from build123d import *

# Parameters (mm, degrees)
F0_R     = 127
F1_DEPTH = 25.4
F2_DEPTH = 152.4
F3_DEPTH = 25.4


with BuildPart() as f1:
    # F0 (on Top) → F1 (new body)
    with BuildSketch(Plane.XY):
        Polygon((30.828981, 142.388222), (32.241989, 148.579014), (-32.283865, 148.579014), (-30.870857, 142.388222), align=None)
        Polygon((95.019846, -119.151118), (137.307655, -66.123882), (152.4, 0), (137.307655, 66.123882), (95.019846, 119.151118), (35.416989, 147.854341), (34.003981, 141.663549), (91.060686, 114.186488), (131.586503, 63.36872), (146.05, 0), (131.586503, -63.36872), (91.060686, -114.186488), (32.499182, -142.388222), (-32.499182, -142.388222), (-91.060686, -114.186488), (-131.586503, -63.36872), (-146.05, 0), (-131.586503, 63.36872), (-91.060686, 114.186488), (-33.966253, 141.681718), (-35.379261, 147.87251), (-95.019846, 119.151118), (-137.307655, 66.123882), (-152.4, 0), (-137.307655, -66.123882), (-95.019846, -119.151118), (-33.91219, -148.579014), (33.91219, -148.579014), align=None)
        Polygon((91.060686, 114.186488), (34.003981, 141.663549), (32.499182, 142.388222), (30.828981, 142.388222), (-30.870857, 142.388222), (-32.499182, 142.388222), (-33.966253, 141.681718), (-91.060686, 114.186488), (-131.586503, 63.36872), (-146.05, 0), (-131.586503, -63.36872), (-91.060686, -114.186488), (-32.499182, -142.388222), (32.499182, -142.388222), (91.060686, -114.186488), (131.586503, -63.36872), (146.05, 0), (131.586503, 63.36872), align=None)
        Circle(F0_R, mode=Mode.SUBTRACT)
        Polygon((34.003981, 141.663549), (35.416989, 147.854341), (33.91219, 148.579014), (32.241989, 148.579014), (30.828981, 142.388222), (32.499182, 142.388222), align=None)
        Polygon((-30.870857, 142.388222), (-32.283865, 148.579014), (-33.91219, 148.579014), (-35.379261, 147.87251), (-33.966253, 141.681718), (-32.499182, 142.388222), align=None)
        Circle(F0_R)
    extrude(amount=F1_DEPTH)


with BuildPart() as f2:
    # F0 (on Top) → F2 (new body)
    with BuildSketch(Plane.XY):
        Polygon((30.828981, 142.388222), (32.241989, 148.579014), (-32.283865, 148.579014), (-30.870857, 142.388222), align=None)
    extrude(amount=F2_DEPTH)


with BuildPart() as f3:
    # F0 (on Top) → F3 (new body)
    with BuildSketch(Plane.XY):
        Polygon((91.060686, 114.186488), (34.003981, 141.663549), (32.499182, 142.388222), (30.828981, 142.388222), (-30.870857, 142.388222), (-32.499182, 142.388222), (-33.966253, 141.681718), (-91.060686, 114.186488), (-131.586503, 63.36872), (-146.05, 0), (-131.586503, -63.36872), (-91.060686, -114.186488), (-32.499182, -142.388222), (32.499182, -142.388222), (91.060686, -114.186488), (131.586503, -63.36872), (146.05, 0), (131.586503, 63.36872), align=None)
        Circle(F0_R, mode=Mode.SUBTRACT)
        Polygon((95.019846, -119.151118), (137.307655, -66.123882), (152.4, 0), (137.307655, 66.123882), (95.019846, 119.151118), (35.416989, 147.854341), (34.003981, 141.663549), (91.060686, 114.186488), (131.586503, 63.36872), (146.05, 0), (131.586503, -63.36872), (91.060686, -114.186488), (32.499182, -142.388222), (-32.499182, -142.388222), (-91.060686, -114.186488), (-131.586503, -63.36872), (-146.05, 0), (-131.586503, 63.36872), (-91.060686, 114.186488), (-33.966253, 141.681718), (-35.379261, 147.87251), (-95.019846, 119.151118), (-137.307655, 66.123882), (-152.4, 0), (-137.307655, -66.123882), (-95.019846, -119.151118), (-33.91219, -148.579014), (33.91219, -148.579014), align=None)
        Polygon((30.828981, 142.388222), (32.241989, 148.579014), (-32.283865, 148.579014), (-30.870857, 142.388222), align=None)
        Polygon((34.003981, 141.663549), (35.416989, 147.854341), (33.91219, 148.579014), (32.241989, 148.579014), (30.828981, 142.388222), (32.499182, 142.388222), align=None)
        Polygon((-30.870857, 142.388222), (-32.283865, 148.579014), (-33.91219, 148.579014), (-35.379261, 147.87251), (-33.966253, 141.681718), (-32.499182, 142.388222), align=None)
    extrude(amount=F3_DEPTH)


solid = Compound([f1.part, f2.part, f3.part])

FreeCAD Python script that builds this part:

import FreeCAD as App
import Part
import Sketcher

V = App.Vector
Q = App.Units.Quantity


def add_polygon(sketch, points):
    """Adds a closed chain of lines whose ends are joined by coincident constraints."""
    first, n = sketch.GeometryCount, len(points)
    for a, b in zip(points, points[1:] + points[:1]):
        sketch.addGeometry(Part.LineSegment(App.Vector(*a, 0), App.Vector(*b, 0)), False)
    for i in range(n):
        sketch.addConstraint(Sketcher.Constraint("Coincident", first + i, 2, first + (i + 1) % n, 1))

doc = App.newDocument("Part")
body = doc.addObject("PartDesign::Body", "Body")

sketch1 = body.newObject("Sketcher::SketchObject", "Sketch")
sketch1.AttachmentSupport = (doc.getObject("XY_Plane"), [""])
sketch1.MapMode = "FlatFace"
add_polygon(sketch1, [(-35.4, 147.9), (-95, 119.2), (-137.3, 66.1), (-152.4, 0), (-137.3, -66.1), (-95, -119.2), (-33.9, -148.6), (33.9, -148.6), (95, -119.2), (137.3, -66.1), (152.4, 0), (137.3, 66.1), (95, 119.2), (35.4, 147.9), (33.9, 148.6), (-33.9, 148.6)])
sketch1.addConstraint([
    Sketcher.Constraint("Horizontal", 6),
    Sketcher.Constraint("Horizontal", 14),
    Sketcher.Constraint("Symmetric", 0, 2, 7, 2, -1, 1),
    Sketcher.Constraint("Symmetric", 1, 2, 8, 2, -1, 1),
    Sketcher.Constraint("Symmetric", 2, 2, 9, 2, -1, 1),
    Sketcher.Constraint("Symmetric", 3, 2, 10, 2, -1, 1),
    Sketcher.Constraint("Symmetric", 4, 2, 11, 2, -1, 1),
    Sketcher.Constraint("Symmetric", 5, 2, 13, 2, -1, 1),
    Sketcher.Constraint("Symmetric", 4, 2, 7, 2, -2),
    Sketcher.Constraint("Symmetric", 3, 2, 8, 2, -2),
    Sketcher.Constraint("PointOnObject", 2, 2, -1),
    Sketcher.Constraint("Parallel", 0, 7),
    Sketcher.Constraint("Parallel", 5, 12),
    Sketcher.Constraint("Parallel", 7, 15),
    Sketcher.Constraint("Vertical", 6, 2, 13, 2),
    Sketcher.Constraint("Equal", 1, 2),
    Sketcher.Constraint("Equal", 4, 5),
    Sketcher.Constraint("DistanceX", 2, 2, -1, 1, Q("6 in")),
    Sketcher.Constraint("Distance", 13, 1.670201),
    Sketcher.Constraint("DistanceX", 6, 1, 6, 2, 67.82438),
    Sketcher.Constraint("DistanceY", 3, 2, 0, 2, 185.275),
    Sketcher.Constraint("DistanceX", 3, 2, 7, 2, 232.327501),
    Sketcher.Constraint("DistanceX", 13, 2, 12, 2, 1.504799),
    Sketcher.Constraint("DistanceX", 15, 2, -1, 1, 35.379261),
])
pad1 = body.newObject("PartDesign::Pad", "Pad")
pad1.Profile = sketch1
pad1.Length = Q("1 in")
body2 = doc.addObject("PartDesign::Body", "Body001")

sketch2 = body2.newObject("Sketcher::SketchObject", "Sketch001")
sketch2.AttachmentSupport = (doc.getObject("XY_Plane001"), [""])
sketch2.MapMode = "FlatFace"
add_polygon(sketch2, [(31, 142), (32, 149), (-32, 149), (-31, 142)])
sketch2.addConstraint([
    Sketcher.Constraint("Horizontal", 1),
    Sketcher.Constraint("Horizontal", 3),
    Sketcher.Constraint("Equal", 0, 2),
    Sketcher.Constraint("Distance", 0, Q("0.25 in")),
    Sketcher.Constraint("DistanceX", 1, 2, 1, 1, 64.525854),
    Sketcher.Constraint("DistanceX", 3, 1, 3, 2, 61.699838),
    Sketcher.Constraint("DistanceX", -1, 1, 0, 2, 32.241989),
    Sketcher.Constraint("DistanceY", -1, 1, 0, 2, 148.579014),
])
pad2 = body2.newObject("PartDesign::Pad", "Pad001")
pad2.Profile = sketch2
pad2.Length = Q("6 in")
body3 = doc.addObject("PartDesign::Body", "Body002")

sketch3 = body3.newObject("Sketcher::SketchObject", "Sketch002")
sketch3.AttachmentSupport = (doc.getObject("XY_Plane002"), [""])
sketch3.MapMode = "FlatFace"
add_polygon(sketch3, [(-35.4, 147.9), (-95, 119.2), (-137.3, 66.1), (-152.4, 0), (-137.3, -66.1), (-95, -119.2), (-33.9, -148.6), (33.9, -148.6), (95, -119.2), (137.3, -66.1), (152.4, 0), (137.3, 66.1), (95, 119.2), (35.4, 147.9), (33.9, 148.6), (-33.9, 148.6)])
sketch3.addGeometry(Part.Circle(V(0, 0, 0), V(0, 0, 1), 127), False)
sketch3.addConstraint([
    Sketcher.Constraint("Horizontal", 6),
    Sketcher.Constraint("Horizontal", 14),
    Sketcher.Constraint("Coincident", 16, 3, -1, 1),
    Sketcher.Constraint("Symmetric", 0, 2, 7, 2, -1, 1),
    Sketcher.Constraint("Symmetric", 1, 2, 8, 2, -1, 1),
    Sketcher.Constraint("Symmetric", 2, 2, 9, 2, -1, 1),
    Sketcher.Constraint("Symmetric", 3, 2, 10, 2, -1, 1),
    Sketcher.Constraint("Symmetric", 4, 2, 11, 2, -1, 1),
    Sketcher.Constraint("Symmetric", 5, 2, 13, 2, -1, 1),
    Sketcher.Constraint("Symmetric", 4, 2, 7, 2, -2),
    Sketcher.Constraint("Symmetric", 3, 2, 8, 2, -2),
    Sketcher.Constraint("PointOnObject", 2, 2, -1),
    Sketcher.Constraint("Parallel", 0, 7),
    Sketcher.Constraint("Parallel", 5, 12),
    Sketcher.Constraint("Parallel", 7, 15),
    Sketcher.Constraint("Vertical", 6, 2, 13, 2),
    Sketcher.Constraint("Equal", 1, 2),
    Sketcher.Constraint("Equal", 4, 5),
    Sketcher.Constraint("Diameter", 16, Q("10 in")),
    Sketcher.Constraint("DistanceX", 2, 2, -1, 1, Q("6 in")),
    Sketcher.Constraint("Distance", 13, 1.670201),
    Sketcher.Constraint("DistanceX", 6, 1, 6, 2, 67.82438),
    Sketcher.Constraint("DistanceY", 3, 2, 0, 2, 185.275),
    Sketcher.Constraint("DistanceX", 3, 2, 7, 2, 232.327501),
    Sketcher.Constraint("DistanceX", 13, 2, 12, 2, 1.504799),
    Sketcher.Constraint("DistanceX", 15, 2, -1, 1, 35.379261),
])
pad3 = body3.newObject("PartDesign::Pad", "Pad002")
pad3.Profile = sketch3
pad3.Length = Q("1 in")

doc.recompute()
